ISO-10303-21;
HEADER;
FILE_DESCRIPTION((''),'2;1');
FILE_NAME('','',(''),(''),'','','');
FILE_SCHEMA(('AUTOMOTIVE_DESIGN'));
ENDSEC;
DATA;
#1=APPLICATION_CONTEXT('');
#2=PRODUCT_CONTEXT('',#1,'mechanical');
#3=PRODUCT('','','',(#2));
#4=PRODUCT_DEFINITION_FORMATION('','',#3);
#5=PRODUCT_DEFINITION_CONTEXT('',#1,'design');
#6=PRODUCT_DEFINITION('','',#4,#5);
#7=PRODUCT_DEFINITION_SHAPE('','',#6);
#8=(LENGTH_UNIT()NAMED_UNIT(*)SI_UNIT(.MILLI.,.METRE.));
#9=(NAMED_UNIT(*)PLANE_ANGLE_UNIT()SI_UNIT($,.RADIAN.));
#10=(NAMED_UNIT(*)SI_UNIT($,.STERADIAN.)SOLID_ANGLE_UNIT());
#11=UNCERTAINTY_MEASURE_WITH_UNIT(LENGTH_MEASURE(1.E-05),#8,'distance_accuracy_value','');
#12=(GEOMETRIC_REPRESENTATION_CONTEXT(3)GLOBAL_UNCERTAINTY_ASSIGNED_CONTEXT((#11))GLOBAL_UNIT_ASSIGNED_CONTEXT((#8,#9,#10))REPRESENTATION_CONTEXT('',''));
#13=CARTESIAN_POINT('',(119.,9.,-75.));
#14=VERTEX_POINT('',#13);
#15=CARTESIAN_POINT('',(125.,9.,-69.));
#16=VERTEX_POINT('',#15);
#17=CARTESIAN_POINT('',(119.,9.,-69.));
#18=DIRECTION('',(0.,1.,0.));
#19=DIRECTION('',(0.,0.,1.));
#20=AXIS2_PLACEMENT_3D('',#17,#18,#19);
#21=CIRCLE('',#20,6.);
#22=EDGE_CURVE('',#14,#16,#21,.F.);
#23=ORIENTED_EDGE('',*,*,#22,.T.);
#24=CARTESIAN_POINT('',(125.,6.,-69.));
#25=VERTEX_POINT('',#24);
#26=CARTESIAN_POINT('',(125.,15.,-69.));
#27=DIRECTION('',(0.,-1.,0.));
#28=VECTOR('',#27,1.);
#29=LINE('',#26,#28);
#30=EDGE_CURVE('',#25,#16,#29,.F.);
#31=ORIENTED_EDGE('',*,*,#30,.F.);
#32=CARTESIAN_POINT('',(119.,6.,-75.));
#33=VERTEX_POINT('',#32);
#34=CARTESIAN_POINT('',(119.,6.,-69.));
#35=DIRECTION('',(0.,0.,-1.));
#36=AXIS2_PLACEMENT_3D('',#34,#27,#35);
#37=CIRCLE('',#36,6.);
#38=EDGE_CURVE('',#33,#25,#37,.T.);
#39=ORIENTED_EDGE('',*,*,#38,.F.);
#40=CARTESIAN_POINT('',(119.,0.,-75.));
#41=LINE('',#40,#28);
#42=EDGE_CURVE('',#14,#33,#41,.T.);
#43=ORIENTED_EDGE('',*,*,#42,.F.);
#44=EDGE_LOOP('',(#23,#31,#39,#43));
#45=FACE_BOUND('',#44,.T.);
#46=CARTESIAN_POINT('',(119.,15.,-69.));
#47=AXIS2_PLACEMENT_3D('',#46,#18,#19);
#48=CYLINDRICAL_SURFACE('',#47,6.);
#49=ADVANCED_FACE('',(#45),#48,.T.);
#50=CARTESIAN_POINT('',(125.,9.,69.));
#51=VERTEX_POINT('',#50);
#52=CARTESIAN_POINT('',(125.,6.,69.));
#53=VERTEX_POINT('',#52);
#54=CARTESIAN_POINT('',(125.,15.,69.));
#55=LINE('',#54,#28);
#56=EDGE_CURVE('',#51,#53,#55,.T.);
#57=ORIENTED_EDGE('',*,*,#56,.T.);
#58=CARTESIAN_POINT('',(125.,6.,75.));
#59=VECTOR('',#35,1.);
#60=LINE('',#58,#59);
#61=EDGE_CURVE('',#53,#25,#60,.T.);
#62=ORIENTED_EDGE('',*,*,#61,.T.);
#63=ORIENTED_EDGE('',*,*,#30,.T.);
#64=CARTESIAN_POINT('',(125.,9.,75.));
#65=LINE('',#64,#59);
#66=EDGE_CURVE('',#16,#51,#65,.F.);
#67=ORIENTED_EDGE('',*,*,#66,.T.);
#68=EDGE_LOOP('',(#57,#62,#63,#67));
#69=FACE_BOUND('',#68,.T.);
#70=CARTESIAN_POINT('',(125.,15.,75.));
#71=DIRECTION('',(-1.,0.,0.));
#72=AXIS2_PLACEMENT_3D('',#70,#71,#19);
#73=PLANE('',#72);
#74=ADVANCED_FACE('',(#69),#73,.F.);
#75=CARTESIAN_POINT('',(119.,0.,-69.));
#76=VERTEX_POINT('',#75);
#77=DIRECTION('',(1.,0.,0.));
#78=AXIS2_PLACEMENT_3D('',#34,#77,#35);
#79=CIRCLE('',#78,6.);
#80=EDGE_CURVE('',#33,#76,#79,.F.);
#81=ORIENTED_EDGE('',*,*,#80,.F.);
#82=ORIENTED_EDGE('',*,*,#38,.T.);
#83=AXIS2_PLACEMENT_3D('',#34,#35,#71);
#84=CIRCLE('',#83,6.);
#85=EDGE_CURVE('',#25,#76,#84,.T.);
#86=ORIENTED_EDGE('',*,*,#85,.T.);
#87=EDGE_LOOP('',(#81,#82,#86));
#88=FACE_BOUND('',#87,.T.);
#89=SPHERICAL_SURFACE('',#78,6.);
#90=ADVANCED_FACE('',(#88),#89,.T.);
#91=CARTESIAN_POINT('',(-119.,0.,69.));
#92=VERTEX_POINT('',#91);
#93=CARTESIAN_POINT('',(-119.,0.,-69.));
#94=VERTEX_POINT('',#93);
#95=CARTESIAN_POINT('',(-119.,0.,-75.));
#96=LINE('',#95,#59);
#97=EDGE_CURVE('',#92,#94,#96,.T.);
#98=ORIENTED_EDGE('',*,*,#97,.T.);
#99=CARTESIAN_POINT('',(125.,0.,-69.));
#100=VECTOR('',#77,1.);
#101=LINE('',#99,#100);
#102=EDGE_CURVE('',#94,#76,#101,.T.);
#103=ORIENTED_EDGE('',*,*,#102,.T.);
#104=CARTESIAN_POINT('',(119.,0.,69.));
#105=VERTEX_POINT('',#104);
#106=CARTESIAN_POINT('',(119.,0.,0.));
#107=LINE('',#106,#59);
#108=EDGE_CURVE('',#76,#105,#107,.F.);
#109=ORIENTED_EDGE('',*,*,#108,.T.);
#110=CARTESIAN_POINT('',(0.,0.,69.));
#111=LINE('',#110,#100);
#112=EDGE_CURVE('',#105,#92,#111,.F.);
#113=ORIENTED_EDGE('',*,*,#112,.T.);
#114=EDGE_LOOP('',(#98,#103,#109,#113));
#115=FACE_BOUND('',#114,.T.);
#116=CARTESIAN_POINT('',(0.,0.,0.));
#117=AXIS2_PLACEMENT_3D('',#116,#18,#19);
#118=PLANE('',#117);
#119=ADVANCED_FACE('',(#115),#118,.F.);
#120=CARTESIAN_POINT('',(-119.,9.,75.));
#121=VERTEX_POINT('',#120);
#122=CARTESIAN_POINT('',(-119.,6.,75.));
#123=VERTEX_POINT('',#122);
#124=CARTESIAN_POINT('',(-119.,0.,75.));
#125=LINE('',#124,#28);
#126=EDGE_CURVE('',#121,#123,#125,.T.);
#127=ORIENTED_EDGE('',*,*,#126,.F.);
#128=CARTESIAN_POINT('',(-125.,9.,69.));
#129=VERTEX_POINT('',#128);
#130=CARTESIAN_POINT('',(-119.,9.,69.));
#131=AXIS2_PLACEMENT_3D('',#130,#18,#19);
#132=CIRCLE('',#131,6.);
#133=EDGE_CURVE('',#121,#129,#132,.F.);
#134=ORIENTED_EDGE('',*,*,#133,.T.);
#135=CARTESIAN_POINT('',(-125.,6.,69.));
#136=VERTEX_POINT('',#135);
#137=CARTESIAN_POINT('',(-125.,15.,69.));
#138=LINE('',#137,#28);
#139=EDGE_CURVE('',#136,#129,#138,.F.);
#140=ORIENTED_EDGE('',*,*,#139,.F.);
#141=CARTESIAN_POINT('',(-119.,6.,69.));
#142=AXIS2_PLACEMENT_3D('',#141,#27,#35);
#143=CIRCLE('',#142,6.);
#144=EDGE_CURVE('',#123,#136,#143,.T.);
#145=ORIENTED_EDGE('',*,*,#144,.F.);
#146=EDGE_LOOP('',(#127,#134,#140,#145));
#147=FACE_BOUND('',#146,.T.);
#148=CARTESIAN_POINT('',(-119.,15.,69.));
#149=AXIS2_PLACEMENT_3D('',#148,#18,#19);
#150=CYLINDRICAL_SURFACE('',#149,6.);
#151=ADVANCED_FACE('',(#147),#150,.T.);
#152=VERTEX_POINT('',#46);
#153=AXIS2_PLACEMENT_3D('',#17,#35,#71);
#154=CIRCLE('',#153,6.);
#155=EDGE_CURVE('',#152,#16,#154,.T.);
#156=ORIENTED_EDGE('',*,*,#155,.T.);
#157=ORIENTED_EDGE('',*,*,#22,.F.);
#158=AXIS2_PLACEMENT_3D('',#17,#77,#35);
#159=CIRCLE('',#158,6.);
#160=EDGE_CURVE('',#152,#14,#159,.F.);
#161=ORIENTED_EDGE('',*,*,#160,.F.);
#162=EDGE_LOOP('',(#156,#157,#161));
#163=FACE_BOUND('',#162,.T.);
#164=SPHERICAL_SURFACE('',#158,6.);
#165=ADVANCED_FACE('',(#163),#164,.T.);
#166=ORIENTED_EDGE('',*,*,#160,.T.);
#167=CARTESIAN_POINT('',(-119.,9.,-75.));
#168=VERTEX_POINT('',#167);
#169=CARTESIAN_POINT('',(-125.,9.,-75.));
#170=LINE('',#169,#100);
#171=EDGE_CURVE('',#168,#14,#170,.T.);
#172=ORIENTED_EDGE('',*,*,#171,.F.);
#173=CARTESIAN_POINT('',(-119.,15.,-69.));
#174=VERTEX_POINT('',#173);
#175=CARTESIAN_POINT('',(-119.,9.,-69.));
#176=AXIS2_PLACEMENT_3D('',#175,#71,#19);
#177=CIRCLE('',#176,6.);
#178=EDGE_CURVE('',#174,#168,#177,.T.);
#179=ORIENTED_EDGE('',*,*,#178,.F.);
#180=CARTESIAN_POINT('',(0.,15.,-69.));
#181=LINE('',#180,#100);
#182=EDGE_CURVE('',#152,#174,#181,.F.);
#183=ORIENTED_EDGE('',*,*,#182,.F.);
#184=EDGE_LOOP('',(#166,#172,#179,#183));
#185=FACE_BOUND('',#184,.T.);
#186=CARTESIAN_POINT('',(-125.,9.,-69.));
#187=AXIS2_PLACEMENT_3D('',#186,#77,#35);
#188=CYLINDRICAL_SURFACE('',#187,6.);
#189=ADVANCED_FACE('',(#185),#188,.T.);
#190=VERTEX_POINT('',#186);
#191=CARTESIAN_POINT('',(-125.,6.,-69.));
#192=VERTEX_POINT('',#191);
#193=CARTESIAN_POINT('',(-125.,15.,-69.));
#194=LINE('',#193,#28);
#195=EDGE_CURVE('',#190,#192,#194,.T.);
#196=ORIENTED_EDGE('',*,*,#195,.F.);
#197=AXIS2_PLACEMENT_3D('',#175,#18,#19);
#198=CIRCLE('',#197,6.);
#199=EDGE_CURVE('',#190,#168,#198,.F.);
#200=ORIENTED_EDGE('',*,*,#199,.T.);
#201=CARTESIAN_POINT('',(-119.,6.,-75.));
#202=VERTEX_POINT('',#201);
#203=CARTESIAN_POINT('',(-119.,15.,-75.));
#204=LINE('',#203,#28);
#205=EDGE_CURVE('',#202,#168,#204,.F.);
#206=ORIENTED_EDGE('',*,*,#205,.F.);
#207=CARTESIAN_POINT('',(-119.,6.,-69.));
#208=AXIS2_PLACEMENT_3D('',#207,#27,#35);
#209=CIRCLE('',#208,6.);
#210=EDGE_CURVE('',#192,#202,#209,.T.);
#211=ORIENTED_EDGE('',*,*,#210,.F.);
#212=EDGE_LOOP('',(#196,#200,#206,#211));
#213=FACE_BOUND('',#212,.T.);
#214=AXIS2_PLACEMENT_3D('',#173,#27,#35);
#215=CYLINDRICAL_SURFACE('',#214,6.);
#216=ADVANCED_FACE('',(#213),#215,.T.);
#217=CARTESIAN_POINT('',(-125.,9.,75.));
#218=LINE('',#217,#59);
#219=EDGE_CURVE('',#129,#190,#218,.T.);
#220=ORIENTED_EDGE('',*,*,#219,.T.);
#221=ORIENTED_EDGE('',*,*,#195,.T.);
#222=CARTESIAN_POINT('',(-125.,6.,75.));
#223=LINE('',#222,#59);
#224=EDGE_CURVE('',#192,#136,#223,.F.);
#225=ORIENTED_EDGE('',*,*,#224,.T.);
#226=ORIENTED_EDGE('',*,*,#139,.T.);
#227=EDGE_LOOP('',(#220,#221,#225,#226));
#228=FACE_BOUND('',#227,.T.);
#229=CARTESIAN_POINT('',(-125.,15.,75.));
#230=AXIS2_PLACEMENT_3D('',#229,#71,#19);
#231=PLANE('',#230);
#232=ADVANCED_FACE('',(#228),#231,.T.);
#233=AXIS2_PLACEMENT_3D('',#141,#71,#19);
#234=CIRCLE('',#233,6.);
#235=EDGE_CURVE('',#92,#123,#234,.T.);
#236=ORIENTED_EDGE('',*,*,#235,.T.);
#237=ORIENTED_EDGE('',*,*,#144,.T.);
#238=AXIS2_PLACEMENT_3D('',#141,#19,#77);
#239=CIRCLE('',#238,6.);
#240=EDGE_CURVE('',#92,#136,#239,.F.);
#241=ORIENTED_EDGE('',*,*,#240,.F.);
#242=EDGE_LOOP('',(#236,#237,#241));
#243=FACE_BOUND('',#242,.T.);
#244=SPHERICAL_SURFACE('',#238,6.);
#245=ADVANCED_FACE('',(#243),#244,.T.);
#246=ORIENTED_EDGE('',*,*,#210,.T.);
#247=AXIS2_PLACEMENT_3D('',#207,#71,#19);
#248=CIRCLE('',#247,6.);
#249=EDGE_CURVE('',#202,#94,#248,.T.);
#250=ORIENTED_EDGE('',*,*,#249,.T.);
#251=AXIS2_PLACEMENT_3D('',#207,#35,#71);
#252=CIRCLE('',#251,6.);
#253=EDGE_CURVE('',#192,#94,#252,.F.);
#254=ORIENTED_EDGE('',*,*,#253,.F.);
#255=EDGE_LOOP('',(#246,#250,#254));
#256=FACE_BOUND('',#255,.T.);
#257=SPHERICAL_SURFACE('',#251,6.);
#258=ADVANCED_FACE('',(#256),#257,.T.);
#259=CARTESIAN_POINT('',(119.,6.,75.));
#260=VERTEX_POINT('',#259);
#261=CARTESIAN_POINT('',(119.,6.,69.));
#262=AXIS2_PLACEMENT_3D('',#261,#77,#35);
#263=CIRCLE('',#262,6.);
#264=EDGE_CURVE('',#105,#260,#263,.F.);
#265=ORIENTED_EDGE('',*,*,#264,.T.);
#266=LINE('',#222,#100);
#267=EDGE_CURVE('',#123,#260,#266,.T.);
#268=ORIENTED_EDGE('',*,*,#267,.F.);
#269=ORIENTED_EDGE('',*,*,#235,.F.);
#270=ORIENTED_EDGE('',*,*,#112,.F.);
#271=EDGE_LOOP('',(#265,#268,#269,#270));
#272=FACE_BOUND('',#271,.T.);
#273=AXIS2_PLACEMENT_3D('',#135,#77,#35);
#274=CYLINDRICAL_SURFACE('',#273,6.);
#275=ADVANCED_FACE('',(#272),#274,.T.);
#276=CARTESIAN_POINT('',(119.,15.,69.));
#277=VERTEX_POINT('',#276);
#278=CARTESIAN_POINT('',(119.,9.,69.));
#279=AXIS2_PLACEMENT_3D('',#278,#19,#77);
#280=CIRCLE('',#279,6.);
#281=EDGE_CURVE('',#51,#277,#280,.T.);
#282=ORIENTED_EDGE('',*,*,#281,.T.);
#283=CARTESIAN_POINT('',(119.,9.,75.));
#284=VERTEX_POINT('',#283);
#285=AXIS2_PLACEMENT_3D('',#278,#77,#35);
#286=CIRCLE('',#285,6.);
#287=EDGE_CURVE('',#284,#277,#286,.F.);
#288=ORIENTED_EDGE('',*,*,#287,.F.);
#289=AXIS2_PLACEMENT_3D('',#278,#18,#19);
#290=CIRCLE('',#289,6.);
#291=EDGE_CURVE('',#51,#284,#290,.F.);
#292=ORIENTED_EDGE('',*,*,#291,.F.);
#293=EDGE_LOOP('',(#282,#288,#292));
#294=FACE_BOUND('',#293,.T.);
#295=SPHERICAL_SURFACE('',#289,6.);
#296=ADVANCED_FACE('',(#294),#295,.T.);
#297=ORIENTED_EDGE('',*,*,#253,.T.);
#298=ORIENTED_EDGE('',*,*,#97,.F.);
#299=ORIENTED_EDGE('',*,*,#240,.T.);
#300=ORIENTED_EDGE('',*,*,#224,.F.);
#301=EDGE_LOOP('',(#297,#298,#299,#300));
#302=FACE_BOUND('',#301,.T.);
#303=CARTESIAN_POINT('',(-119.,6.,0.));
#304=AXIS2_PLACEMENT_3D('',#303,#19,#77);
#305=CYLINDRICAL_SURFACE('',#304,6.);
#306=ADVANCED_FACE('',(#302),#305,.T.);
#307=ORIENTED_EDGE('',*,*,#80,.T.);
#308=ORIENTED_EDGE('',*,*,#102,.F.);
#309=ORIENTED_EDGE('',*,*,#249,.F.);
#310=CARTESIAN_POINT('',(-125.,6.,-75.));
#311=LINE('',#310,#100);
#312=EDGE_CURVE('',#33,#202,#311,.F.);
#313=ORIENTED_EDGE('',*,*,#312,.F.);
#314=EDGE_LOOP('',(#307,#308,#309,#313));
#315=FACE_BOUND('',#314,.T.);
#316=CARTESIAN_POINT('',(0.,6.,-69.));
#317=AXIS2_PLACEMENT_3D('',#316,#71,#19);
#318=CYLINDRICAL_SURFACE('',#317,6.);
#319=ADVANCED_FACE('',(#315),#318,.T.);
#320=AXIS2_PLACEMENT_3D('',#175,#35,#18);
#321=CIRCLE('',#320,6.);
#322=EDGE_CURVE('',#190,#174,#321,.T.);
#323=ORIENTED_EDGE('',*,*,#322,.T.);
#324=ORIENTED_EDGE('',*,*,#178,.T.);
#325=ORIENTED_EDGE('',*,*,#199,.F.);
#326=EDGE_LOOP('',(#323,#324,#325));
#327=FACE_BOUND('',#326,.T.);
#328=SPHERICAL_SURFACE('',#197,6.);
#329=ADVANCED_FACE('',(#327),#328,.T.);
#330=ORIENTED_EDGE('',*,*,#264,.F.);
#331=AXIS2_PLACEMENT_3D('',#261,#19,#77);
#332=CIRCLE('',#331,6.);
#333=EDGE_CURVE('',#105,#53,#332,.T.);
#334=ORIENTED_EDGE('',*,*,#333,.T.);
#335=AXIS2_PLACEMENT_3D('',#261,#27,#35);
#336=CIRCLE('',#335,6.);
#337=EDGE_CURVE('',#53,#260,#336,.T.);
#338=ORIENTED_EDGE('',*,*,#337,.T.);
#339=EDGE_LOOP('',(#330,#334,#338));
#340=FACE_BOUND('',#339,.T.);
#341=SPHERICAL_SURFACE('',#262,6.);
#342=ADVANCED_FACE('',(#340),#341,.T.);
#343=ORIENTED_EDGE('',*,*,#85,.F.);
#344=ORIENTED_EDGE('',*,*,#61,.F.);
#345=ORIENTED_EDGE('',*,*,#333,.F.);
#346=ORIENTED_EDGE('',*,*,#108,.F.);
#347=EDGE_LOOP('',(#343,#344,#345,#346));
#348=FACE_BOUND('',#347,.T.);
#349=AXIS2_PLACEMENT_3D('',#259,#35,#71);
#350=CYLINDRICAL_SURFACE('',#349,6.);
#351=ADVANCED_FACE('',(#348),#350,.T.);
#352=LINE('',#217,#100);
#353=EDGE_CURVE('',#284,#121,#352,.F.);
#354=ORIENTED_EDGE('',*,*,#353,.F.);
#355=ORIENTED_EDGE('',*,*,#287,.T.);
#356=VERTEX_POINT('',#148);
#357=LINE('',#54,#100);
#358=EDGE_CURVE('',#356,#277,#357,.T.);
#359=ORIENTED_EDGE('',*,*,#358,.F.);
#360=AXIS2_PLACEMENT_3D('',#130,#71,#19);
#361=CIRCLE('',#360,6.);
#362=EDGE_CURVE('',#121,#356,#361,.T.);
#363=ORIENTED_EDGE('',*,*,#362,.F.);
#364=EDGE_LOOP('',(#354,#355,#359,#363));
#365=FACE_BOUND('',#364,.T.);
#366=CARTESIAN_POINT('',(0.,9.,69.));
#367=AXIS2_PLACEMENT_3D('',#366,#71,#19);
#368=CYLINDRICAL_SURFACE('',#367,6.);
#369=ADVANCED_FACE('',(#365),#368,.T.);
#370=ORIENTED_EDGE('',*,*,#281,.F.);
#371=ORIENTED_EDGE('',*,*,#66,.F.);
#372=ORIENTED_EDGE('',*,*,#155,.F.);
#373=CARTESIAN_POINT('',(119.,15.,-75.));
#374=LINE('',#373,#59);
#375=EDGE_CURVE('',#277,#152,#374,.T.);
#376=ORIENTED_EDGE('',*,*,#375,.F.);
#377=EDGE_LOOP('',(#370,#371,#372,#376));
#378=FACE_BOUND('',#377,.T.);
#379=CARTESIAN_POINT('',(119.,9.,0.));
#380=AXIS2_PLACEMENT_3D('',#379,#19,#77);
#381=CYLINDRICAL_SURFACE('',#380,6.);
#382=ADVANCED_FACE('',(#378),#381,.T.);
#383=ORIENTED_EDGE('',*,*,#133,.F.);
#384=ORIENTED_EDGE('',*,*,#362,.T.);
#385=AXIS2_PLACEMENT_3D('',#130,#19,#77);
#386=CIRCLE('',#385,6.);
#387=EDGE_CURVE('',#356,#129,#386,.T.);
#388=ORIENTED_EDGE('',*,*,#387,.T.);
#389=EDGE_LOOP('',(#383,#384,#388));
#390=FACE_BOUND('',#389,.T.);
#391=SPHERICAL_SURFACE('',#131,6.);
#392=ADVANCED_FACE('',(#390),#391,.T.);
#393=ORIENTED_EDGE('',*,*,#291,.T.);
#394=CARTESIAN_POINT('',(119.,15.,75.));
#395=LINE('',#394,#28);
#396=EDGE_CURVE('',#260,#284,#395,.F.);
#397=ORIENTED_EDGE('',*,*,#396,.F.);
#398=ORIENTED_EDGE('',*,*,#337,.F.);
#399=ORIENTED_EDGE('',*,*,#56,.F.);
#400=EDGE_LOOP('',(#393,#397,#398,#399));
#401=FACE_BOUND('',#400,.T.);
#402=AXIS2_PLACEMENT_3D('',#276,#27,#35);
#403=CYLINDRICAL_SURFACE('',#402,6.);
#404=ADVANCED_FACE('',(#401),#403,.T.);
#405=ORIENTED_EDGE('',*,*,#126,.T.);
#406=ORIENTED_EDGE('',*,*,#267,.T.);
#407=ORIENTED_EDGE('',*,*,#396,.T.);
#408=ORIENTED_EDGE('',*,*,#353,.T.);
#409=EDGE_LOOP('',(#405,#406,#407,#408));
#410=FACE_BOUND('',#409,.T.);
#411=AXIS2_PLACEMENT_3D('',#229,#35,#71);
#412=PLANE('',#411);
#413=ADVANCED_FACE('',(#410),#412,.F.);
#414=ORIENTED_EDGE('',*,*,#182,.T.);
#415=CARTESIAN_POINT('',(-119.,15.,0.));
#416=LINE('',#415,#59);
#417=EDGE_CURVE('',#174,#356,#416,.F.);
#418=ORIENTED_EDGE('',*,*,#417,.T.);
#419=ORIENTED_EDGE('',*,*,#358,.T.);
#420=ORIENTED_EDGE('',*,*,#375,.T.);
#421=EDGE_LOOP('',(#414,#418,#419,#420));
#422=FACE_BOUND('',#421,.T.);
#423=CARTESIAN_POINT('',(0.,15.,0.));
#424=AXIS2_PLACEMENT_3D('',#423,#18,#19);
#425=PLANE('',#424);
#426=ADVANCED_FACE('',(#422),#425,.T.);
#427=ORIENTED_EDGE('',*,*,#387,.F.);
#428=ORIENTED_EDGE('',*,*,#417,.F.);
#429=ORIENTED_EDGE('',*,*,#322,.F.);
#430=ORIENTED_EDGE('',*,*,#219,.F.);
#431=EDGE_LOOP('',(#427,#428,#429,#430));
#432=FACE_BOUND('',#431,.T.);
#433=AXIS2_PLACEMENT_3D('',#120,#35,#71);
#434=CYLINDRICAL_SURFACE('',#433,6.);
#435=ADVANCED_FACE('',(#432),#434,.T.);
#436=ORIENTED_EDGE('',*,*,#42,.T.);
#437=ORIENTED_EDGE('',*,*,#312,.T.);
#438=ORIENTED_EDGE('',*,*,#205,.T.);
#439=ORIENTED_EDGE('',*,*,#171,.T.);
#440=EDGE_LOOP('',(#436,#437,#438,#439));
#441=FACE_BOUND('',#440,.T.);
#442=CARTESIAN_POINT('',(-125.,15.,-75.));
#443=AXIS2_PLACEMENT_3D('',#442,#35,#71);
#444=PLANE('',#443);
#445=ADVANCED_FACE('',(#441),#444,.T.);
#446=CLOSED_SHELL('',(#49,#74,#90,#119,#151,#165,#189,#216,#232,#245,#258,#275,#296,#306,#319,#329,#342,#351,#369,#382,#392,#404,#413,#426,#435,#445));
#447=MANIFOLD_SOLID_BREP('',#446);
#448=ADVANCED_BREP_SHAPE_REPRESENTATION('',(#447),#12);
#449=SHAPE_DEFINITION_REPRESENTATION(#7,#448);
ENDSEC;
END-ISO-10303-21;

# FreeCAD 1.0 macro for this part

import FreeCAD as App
import Part
import Sketcher
from FreeCAD import Vector
Q = App.Units.Quantity


def add_polygon(sketch, points):
    """Adds a closed chain of lines whose ends are joined by coincident constraints."""
    first, n = sketch.GeometryCount, len(points)
    for a, b in zip(points, points[1:] + points[:1]):
        sketch.addGeometry(Part.LineSegment(App.Vector(*a, 0), App.Vector(*b, 0)), False)
    for i in range(n):
        sketch.addConstraint(Sketcher.Constraint("Coincident", first + i, 2, first + (i + 1) % n, 1))

doc = App.newDocument("Part")
body = doc.addObject("PartDesign::Body", "Body")

# Sketch on XZ plane
sketch1 = body.newObject("Sketcher::SketchObject", "Sketch")
sketch1.AttachmentSupport = (doc.getObject("XZ_Plane"), [""])
sketch1.MapMode = "FlatFace"
add_polygon(sketch1, [(-125, -75), (-125, 75), (125, 75), (125, -75)])  # lines 0-3
sketch1.addConstraint([
    Sketcher.Constraint("Vertical", 0),
    Sketcher.Constraint("Horizontal", 1),
    Sketcher.Constraint("Vertical", 2),
    Sketcher.Constraint("Horizontal", 3),
    Sketcher.Constraint("Symmetric", 0, 2, 2, 2, -1, 1),
    Sketcher.Constraint("DistanceX", 1, 1, 1, 2, Q("250 mm")),
    Sketcher.Constraint("DistanceY", 0, 1, 0, 2, Q("150 mm")),
])
pad1 = body.newObject("PartDesign::Pad", "Pad")
pad1.Profile = sketch1
pad1.Length = 15
pad1.Reversed = True
doc.recompute()

fillet = body.newObject("PartDesign::Fillet", "Fillet")
fillet.Base = (pad1, ["Edge1"])
fillet.UseAllEdges = True
fillet.Radius = 6

doc.recompute()
